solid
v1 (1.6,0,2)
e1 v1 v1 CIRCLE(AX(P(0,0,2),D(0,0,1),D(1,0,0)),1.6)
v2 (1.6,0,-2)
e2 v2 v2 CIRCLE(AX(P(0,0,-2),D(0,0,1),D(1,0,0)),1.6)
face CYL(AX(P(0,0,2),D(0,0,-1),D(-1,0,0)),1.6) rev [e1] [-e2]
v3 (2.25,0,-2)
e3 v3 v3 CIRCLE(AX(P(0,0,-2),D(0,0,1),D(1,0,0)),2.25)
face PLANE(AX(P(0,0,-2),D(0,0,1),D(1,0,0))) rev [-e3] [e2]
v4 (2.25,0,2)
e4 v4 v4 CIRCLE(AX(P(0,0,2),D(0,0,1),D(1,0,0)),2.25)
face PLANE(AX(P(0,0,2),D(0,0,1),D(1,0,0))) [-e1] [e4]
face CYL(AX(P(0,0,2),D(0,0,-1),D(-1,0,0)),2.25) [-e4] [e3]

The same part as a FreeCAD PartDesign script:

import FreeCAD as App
import Part
import Sketcher
from FreeCAD import Vector
Q = App.Units.Quantity

doc = App.newDocument("Part")
body = doc.addObject("PartDesign::Body", "Body")

# Sketch on XY plane
sketch1 = body.newObject("Sketcher::SketchObject", "Sketch")
sketch1.AttachmentSupport = (doc.getObject("XY_Plane"), [""])
sketch1.MapMode = "FlatFace"
sketch1.addGeometry(Part.Circle(Vector(0, 0, 0), Vector(0, 0, 1), 2.2), False)
sketch1.addGeometry(Part.Circle(Vector(0, 0, 0), Vector(0, 0, 1), 1.6), False)
sketch1.addConstraint(Sketcher.Constraint("Coincident", 0, 3, -1, 1))
sketch1.addConstraint(Sketcher.Constraint("Coincident", 1, 3, -1, 1))
sketch1.addConstraint(Sketcher.Constraint("Diameter", 0, Q("4.5 mm")))
sketch1.addConstraint(Sketcher.Constraint("Diameter", 1, Q("3.2 mm")))
pad1 = body.newObject("PartDesign::Pad", "Pad")
pad1.Profile = sketch1
pad1.Length = 4
pad1.Midplane = True

doc.recompute()
